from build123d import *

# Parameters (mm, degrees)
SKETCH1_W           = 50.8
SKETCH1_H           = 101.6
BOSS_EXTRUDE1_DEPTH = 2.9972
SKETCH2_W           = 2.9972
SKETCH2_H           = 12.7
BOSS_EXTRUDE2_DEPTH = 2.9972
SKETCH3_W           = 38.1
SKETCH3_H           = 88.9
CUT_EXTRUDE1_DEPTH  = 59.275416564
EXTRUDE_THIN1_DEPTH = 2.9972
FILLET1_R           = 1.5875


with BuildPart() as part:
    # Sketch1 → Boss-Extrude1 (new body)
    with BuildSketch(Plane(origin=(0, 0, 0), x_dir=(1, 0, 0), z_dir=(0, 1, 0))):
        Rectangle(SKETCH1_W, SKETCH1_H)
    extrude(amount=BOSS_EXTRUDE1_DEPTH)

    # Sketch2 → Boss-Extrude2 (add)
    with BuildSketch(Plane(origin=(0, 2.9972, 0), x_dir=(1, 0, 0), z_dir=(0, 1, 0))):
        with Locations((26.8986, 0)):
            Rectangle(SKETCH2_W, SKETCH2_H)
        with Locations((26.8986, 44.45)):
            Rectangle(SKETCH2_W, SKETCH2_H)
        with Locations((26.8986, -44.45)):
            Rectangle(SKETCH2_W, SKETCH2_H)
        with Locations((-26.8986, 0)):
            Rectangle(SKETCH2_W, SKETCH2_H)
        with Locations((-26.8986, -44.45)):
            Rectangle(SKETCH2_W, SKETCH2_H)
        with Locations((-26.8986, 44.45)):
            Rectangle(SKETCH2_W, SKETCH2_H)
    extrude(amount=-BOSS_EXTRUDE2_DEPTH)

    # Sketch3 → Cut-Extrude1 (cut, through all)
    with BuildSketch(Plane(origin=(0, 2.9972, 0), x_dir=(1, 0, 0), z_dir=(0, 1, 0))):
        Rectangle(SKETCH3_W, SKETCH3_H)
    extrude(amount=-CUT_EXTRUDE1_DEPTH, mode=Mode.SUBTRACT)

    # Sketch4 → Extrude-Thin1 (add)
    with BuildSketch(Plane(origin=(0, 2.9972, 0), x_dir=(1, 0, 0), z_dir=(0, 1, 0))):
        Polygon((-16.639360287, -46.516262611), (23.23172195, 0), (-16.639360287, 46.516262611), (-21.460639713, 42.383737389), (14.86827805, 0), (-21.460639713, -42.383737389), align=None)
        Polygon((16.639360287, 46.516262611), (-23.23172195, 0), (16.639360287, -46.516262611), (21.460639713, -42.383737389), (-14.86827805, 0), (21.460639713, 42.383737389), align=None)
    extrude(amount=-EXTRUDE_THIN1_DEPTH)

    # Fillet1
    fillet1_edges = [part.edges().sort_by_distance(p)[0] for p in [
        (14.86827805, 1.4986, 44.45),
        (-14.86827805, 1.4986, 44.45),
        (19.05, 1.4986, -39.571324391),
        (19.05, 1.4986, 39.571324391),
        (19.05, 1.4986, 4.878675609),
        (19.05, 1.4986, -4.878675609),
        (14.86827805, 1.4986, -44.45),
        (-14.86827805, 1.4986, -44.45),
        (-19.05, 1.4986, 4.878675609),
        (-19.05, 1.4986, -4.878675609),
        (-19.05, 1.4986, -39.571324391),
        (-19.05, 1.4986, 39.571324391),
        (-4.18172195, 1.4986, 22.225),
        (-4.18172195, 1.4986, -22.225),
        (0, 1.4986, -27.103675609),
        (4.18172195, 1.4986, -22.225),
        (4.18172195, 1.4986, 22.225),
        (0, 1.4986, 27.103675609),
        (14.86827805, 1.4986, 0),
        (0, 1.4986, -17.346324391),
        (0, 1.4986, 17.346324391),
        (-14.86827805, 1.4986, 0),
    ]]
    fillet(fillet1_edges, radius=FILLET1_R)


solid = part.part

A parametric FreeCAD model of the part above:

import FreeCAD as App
import Part
import Sketcher
from FreeCAD import Vector
Q = App.Units.Quantity


def edges_at(feature, points):
    """Names of the edges that pass closest to the given points."""
    edges = feature.Shape.Edges
    near = lambda p: min(range(len(edges)), key=lambda i: edges[i].distToShape(Part.Vertex(*p))[0])
    return sorted({f"Edge{near(p) + 1}" for p in points})


def add_polygon(sketch, points):
    """Adds a closed chain of lines whose ends are joined by coincident constraints."""
    first, n = sketch.GeometryCount, len(points)
    for a, b in zip(points, points[1:] + points[:1]):
        sketch.addGeometry(Part.LineSegment(App.Vector(*a, 0), App.Vector(*b, 0)), False)
    for i in range(n):
        sketch.addConstraint(Sketcher.Constraint("Coincident", first + i, 2, first + (i + 1) % n, 1))

doc = App.newDocument("Part")
body = doc.addObject("PartDesign::Body", "Body")

sketch1 = body.newObject("Sketcher::SketchObject", "Sketch")
sketch1.AttachmentSupport = (doc.getObject("XZ_Plane"), [""])
sketch1.MapMode = "FlatFace"
add_polygon(sketch1, [(-25, -51), (-25, 51), (25, 51), (25, -51)])
sketch1.addConstraint(Sketcher.Constraint("Vertical", 0))
sketch1.addConstraint(Sketcher.Constraint("Horizontal", 1))
sketch1.addConstraint(Sketcher.Constraint("Vertical", 2))
sketch1.addConstraint(Sketcher.Constraint("Horizontal", 3))
sketch1.addConstraint(Sketcher.Constraint("Symmetric", 0, 2, 2, 2, -1, 1))
sketch1.addConstraint(Sketcher.Constraint("DistanceX", 1, 1, 1, 2, Q("2 in")))
sketch1.addConstraint(Sketcher.Constraint("DistanceY", 0, 1, 0, 2, Q("4 in")))
pad1 = body.newObject("PartDesign::Pad", "Pad")
pad1.Profile = sketch1
pad1.Length = Q("0.118 in")
pad1.Reversed = True

sketch2 = body.newObject("Sketcher::SketchObject", "Sketch001")
sketch2.AttachmentSupport = (doc.getObject("XZ_Plane"), [""])
sketch2.MapMode = "FlatFace"
sketch2.AttachmentOffset = App.Placement(Vector(0, 0, -0.118 * 25.4), App.Rotation())
add_polygon(sketch2, [(25.4, -6.3), (25.4, 6.3), (28.4, 6.3), (28.4, -6.3)])
add_polygon(sketch2, [(25.4, -50.8), (25.4, -38.1), (28.4, -38.1), (28.4, -50.8)])
add_polygon(sketch2, [(25.4, 38.1), (25.4, 50.8), (28.4, 50.8), (28.4, 38.1)])
add_polygon(sketch2, [(-28.4, -6.3), (-28.4, 6.3), (-25.4, 6.3), (-25.4, -6.3)])
add_polygon(sketch2, [(-28.4, 38.1), (-28.4, 50.8), (-25.4, 50.8), (-25.4, 38.1)])
add_polygon(sketch2, [(-28.4, -50.8), (-28.4, -38.1), (-25.4, -38.1), (-25.4, -50.8)])
sketch2.addConstraint(Sketcher.Constraint("Vertical", 0))
sketch2.addConstraint(Sketcher.Constraint("Horizontal", 1))
sketch2.addConstraint(Sketcher.Constraint("Vertical", 2))
sketch2.addConstraint(Sketcher.Constraint("Horizontal", 3))
sketch2.addConstraint(Sketcher.Constraint("Vertical", 4))
sketch2.addConstraint(Sketcher.Constraint("Horizontal", 5))
sketch2.addConstraint(Sketcher.Constraint("Vertical", 6))
sketch2.addConstraint(Sketcher.Constraint("Horizontal", 7))
sketch2.addConstraint(Sketcher.Constraint("Vertical", 8))
sketch2.addConstraint(Sketcher.Constraint("Horizontal", 9))
sketch2.addConstraint(Sketcher.Constraint("Vertical", 10))
sketch2.addConstraint(Sketcher.Constraint("Horizontal", 11))
sketch2.addConstraint(Sketcher.Constraint("Vertical", 12))
sketch2.addConstraint(Sketcher.Constraint("Horizontal", 13))
sketch2.addConstraint(Sketcher.Constraint("Vertical", 14))
sketch2.addConstraint(Sketcher.Constraint("Horizontal", 15))
sketch2.addConstraint(Sketcher.Constraint("Vertical", 16))
sketch2.addConstraint(Sketcher.Constraint("Horizontal", 17))
sketch2.addConstraint(Sketcher.Constraint("Vertical", 18))
sketch2.addConstraint(Sketcher.Constraint("Horizontal", 19))
sketch2.addConstraint(Sketcher.Constraint("Vertical", 20))
sketch2.addConstraint(Sketcher.Constraint("Horizontal", 21))
sketch2.addConstraint(Sketcher.Constraint("Vertical", 22))
sketch2.addConstraint(Sketcher.Constraint("Horizontal", 23))
sketch2.addConstraint(Sketcher.Constraint("Symmetric", 2, 2, 12, 2, -1, 1))
sketch2.addConstraint(Sketcher.Constraint("Symmetric", 0, 2, 14, 2, -1, 1))
sketch2.addConstraint(Sketcher.Constraint("Symmetric", 6, 2, 16, 2, -1, 1))
sketch2.addConstraint(Sketcher.Constraint("Symmetric", 4, 2, 18, 2, -1, 1))
sketch2.addConstraint(Sketcher.Constraint("Symmetric", 10, 2, 20, 2, -1, 1))
sketch2.addConstraint(Sketcher.Constraint("Symmetric", 8, 2, 22, 2, -1, 1))
sketch2.addConstraint(Sketcher.Constraint("Symmetric", 9, 2, 16, 2, -2))
sketch2.addConstraint(Sketcher.Constraint("Symmetric", 11, 2, 18, 2, -2))
sketch2.addConstraint(Sketcher.Constraint("Horizontal", 1, 2, 12, 2))
sketch2.addConstraint(Sketcher.Constraint("Vertical", 3, 2, 4, 2))
sketch2.addConstraint(Sketcher.Constraint("Vertical", 2, 2, 5, 2))
sketch2.addConstraint(Sketcher.Constraint("Equal", 2, 4))
sketch2.addConstraint(Sketcher.Constraint("DistanceY", 0, 1, 0, 2, Q("0.5 in")))
sketch2.addConstraint(Sketcher.Constraint("DistanceX", -1, 1, 0, 2, Q("1 in")))
sketch2.addConstraint(Sketcher.Constraint("DistanceY", 6, 2, -1, 1, Q("2 in")))
sketch2.addConstraint(Sketcher.Constraint("DistanceX", 1, 1, 1, 2, Q("0.118 in")))
pad2 = body.newObject("PartDesign::Pad", "Pad001")
pad2.Profile = sketch2
pad2.Length = Q("0.118 in")

sketch3 = body.newObject("Sketcher::SketchObject", "Sketch002")
sketch3.AttachmentSupport = (doc.getObject("XZ_Plane"), [""])
sketch3.MapMode = "FlatFace"
sketch3.AttachmentOffset = App.Placement(Vector(0, 0, -0.118 * 25.4), App.Rotation())
add_polygon(sketch3, [(-19, -44), (-19, 44), (19, 44), (19, -44)])
sketch3.addConstraint(Sketcher.Constraint("Vertical", 0))
sketch3.addConstraint(Sketcher.Constraint("Horizontal", 1))
sketch3.addConstraint(Sketcher.Constraint("Vertical", 2))
sketch3.addConstraint(Sketcher.Constraint("Horizontal", 3))
sketch3.addConstraint(Sketcher.Constraint("Symmetric", 0, 2, 2, 2, -1, 1))
sketch3.addConstraint(Sketcher.Constraint("DistanceX", 1, 1, 1, 2, Q("1.5 in")))
sketch3.addConstraint(Sketcher.Constraint("DistanceY", 0, 1, 0, 2, Q("3.5 in")))
pocket1 = body.newObject("PartDesign::Pocket", "Pocket")
pocket1.Profile = sketch3
pocket1.Type = "ThroughAll"
pocket1.Reversed = True

sketch4 = body.newObject("Sketcher::SketchObject", "Sketch003")
sketch4.AttachmentSupport = (doc.getObject("XZ_Plane"), [""])
sketch4.MapMode = "FlatFace"
sketch4.AttachmentOffset = App.Placement(Vector(0, 0, -0.118 * 25.4), App.Rotation())
add_polygon(sketch4, [(-21, 42), (-17, 47), (0, 27), (17, 47), (21, 42), (4, 22), (23, 0), (4, -22), (21, -42), (17, -47), (0, -27), (-17, -47), (-21, -42), (-4, -22), (-23, 0), (-4, 22)])
add_polygon(sketch4, [(-15, 0), (0, -17), (15, 0), (0, 17)])
sketch4.addConstraint(Sketcher.Constraint("Symmetric", 0, 2, 8, 2, -1, 1))
sketch4.addConstraint(Sketcher.Constraint("Symmetric", 1, 2, 9, 2, -1, 1))
sketch4.addConstraint(Sketcher.Constraint("Symmetric", 2, 2, 10, 2, -1, 1))
sketch4.addConstraint(Sketcher.Constraint("Symmetric", 3, 2, 11, 2, -1, 1))
sketch4.addConstraint(Sketcher.Constraint("Symmetric", 4, 2, 12, 2, -1, 1))
sketch4.addConstraint(Sketcher.Constraint("Symmetric", 5, 2, 13, 2, -1, 1))
sketch4.addConstraint(Sketcher.Constraint("Symmetric", 6, 2, 14, 2, -1, 1))
sketch4.addConstraint(Sketcher.Constraint("Symmetric", 7, 2, 15, 2, -1, 1))
sketch4.addConstraint(Sketcher.Constraint("Symmetric", 16, 2, 18, 2, -1, 1))
sketch4.addConstraint(Sketcher.Constraint("Symmetric", 17, 2, 19, 2, -1, 1))
sketch4.addConstraint(Sketcher.Constraint("Symmetric", 0, 2, 2, 2, -2))
sketch4.addConstraint(Sketcher.Constraint("Symmetric", 7, 2, 11, 2, -2))
sketch4.addConstraint(Sketcher.Constraint("Symmetric", 6, 2, 12, 2, -2))
sketch4.addConstraint(Sketcher.Constraint("PointOnObject", 1, 2, -2))
sketch4.addConstraint(Sketcher.Constraint("PointOnObject", 5, 2, -1))
sketch4.addConstraint(Sketcher.Constraint("PointOnObject", 16, 2, -2))
sketch4.addConstraint(Sketcher.Constraint("PointOnObject", 17, 2, -1))
sketch4.addConstraint(Sketcher.Constraint("Perpendicular", 0, 1))
sketch4.addConstraint(Sketcher.Constraint("Perpendicular", 3, 4))
sketch4.addConstraint(Sketcher.Constraint("Parallel", 1, 5))
sketch4.addConstraint(Sketcher.Constraint("Parallel", 15, 16))
sketch4.addConstraint(Sketcher.Constraint("DistanceX", 0, 2, 3, 2, Q("1.5 in")))
sketch4.addConstraint(Sketcher.Constraint("Distance", 0, Q("0.25 in")))
sketch4.addConstraint(Sketcher.Constraint("DistanceX", 4, 2, 5, 2, Q("0.75 in")))
sketch4.addConstraint(Sketcher.Constraint("DistanceY", 6, 2, 4, 2, Q("1.75 in")))
sketch4.addConstraint(Sketcher.Constraint("DistanceX", 12, 2, 17, 2, Q("0.75 in")))
sketch4.addConstraint(Sketcher.Constraint("Distance", 16, 22.846458))
pad3 = body.newObject("PartDesign::Pad", "Pad002")
pad3.Profile = sketch4
pad3.Length = Q("0.118 in")
doc.recompute()

fillet = body.newObject("PartDesign::Fillet", "Fillet")
fillet.Base = (pad3, edges_at(pad3, [
    (14.868, 1.499, 44.45),
    (-14.868, 1.499, 44.45),
    (19.05, 1.499, -39.571),
    (19.05, 1.499, 39.571),
    (19.05, 1.499, 4.879),
    (19.05, 1.499, -4.879),
    (14.868, 1.499, -44.45),
    (-14.868, 1.499, -44.45),
    (-19.05, 1.499, 4.879),
    (-19.05, 1.499, -4.879),
    (-19.05, 1.499, -39.571),
    (-19.05, 1.499, 39.571),
    (-4.182, 1.499, 22.225),
    (-4.182, 1.499, -22.225),
    (0, 1.499, -27.104),
    (4.182, 1.499, -22.225),
    (4.182, 1.499, 22.225),
    (0, 1.499, 27.104),
    (14.868, 1.499, 0),
    (0, 1.499, -17.346),
    (0, 1.499, 17.346),
    (-14.868, 1.499, 0),
]))
fillet.Radius = Q("0.0625 in")

doc.recompute()
